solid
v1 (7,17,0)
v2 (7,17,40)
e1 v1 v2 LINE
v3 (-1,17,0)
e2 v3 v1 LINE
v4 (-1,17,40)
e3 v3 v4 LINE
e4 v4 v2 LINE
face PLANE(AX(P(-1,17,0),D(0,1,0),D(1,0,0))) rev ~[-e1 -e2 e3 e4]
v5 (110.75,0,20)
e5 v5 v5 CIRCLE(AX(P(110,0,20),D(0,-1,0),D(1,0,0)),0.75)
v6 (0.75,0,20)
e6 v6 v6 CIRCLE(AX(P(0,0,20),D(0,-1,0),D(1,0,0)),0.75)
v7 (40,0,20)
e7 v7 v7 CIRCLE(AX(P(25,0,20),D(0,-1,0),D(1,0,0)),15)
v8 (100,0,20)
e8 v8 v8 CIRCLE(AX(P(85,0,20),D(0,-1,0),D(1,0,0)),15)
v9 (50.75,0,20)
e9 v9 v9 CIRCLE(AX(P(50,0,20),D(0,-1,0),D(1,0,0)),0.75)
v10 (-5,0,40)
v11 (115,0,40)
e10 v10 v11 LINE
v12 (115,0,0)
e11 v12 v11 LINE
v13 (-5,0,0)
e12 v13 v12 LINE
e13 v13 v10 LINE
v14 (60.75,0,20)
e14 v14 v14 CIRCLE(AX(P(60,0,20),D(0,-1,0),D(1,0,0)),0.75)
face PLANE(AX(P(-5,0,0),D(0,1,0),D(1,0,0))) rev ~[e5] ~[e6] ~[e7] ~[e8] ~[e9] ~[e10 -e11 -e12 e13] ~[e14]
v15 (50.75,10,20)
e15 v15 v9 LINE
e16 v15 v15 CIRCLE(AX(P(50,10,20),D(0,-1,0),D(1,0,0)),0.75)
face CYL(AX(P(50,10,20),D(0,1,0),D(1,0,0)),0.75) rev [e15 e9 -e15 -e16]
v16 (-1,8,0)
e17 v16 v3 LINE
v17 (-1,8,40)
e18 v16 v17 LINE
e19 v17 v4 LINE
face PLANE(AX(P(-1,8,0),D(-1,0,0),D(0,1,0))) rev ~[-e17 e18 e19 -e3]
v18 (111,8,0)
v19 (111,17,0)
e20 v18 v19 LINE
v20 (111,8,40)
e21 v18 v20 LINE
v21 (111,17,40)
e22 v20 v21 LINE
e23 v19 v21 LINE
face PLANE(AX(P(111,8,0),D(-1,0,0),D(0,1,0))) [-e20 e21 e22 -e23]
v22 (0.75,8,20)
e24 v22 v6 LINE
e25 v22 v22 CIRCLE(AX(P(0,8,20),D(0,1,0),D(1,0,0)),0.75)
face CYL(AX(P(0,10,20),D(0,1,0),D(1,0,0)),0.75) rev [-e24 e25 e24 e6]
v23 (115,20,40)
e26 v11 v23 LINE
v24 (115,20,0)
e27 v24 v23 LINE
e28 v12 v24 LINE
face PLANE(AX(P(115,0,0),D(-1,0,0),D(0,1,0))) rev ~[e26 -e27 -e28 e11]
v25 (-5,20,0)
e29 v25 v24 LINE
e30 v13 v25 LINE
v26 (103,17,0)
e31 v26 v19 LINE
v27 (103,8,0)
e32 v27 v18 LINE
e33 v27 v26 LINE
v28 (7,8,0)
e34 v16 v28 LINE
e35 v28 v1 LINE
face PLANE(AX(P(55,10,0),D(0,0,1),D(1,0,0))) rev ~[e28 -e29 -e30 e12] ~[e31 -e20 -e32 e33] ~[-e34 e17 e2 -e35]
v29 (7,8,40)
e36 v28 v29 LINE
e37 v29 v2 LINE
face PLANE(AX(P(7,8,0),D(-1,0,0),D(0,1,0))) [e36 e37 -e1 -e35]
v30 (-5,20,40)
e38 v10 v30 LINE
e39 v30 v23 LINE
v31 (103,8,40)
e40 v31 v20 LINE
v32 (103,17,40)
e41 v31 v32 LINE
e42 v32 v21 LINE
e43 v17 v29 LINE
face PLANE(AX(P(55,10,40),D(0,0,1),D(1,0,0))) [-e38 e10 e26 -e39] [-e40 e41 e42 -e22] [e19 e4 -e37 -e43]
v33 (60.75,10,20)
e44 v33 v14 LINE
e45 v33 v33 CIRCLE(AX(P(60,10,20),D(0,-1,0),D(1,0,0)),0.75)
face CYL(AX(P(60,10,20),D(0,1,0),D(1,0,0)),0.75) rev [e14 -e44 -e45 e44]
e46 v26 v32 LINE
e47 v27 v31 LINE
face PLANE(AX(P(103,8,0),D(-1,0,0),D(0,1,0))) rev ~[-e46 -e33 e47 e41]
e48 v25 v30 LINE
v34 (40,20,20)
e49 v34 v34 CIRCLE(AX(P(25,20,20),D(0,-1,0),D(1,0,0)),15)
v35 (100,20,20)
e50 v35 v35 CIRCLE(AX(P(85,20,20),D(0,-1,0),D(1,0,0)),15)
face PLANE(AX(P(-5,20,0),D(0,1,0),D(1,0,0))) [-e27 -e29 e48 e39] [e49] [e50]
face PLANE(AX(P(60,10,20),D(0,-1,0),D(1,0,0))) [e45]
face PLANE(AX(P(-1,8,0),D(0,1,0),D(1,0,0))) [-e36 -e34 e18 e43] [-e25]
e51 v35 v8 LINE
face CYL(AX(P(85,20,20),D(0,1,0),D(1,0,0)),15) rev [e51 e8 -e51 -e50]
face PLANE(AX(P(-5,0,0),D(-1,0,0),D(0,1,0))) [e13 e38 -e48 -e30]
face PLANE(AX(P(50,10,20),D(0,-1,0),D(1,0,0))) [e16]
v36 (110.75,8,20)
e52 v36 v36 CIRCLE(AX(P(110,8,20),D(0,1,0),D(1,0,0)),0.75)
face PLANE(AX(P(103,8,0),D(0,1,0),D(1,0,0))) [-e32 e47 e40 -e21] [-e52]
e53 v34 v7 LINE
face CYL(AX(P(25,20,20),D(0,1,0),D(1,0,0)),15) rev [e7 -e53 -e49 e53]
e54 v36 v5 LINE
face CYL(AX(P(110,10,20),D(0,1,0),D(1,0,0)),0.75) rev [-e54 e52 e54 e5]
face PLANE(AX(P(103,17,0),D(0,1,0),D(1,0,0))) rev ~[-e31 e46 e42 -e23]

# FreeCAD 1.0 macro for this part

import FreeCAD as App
import Part
import Sketcher
from FreeCAD import Vector
Q = App.Units.Quantity

doc = App.newDocument("Part")
params = doc.addObject("Spreadsheet::Sheet", "Params")
for row, (alias, value) in enumerate([
    ("sketch1_diameter", "1.5 mm"),
    ("pad1_length", "10 mm"),
    ("sketch2_diameter", "1.5 mm"),
    ("pad2_length", "10 mm"),
    ("sketch3_diameter", "30 mm"),
    ("pad3_length", "20 mm"),
    ("sketch4_width", "8 mm"),
    ("sketch4_height", "9 mm"),
    ("pad4_length", "40 mm"),
    ("sketch5_width", "8 mm"),
    ("sketch5_height", "9 mm"),
    ("pad5_length", "40 mm"),
    ("sketch6_width", "120 mm"),
    ("sketch6_height", "20 mm"),
    ("pad6_length", "40 mm"),
], start=1):
    params.set(f"A{row}", alias)
    params.set(f"B{row}", "=" + value)
    params.setAlias(f"B{row}", alias)

body = doc.addObject("PartDesign::Body", "Body")

# Sketch on XY plane
sketch1 = body.newObject("Sketcher::SketchObject", "Sketch")
sketch1.AttachmentSupport = (doc.getObject("XY_Plane"), [""])
sketch1.MapMode = "FlatFace"
sketch1.addGeometry(Part.Circle(Vector(0, 0, 0), Vector(0, 0, 1), 0.75), False)
sketch1.addConstraint(Sketcher.Constraint("Coincident", 0, 3, -1, 1))
sketch1.addConstraint(Sketcher.Constraint("Diameter", 0, Q("1.5 mm")))
sketch1.setExpression("Constraints[1]", "Params.sketch1_diameter")
pad1 = body.newObject("PartDesign::Pad", "Pad")
pad1.Profile = sketch1
pad1.setExpression("Length", "Params.pad1_length")
body2 = doc.addObject("PartDesign::Body", "Body001")
doc.recompute()

body.Placement = App.Placement(Vector(0, 0, 0), App.Rotation(Vector(1, 0, 0), 90))
boolean = body2.newObject("PartDesign::Boolean", "Boolean")
boolean.Type = "Fuse"
boolean.addObjects([body])
body3 = doc.addObject("PartDesign::Body", "Body002")
doc.recompute()

body2.Placement = App.Placement(Vector(0, 10, 20), App.Rotation(Vector(0, 0, 1), 0))
boolean2 = body3.newObject("PartDesign::Boolean", "Boolean001")
boolean2.Type = "Fuse"
boolean2.addObjects([body2])
body4 = doc.addObject("PartDesign::Body", "Body003")

# Sketch on XY plane
sketch2 = body4.newObject("Sketcher::SketchObject", "Sketch001")
sketch2.AttachmentSupport = (doc.getObject("XY_Plane003"), [""])
sketch2.MapMode = "FlatFace"
sketch2.addGeometry(Part.Circle(Vector(0, 0, 0), Vector(0, 0, 1), 0.75), False)
sketch2.addConstraint(Sketcher.Constraint("Coincident", 0, 3, -1, 1))
sketch2.addConstraint(Sketcher.Constraint("Diameter", 0, Q("1.5 mm")))
sketch2.setExpression("Constraints[1]", "Params.sketch2_diameter")
pad2 = body4.newObject("PartDesign::Pad", "Pad001")
pad2.Profile = sketch2
pad2.setExpression("Length", "Params.pad2_length")
body5 = doc.addObject("PartDesign::Body", "Body004")
doc.recompute()

body4.Placement = App.Placement(Vector(0, 0, 0), App.Rotation(Vector(1, 0, 0), 90))
boolean3 = body5.newObject("PartDesign::Boolean", "Boolean002")
boolean3.Type = "Fuse"
boolean3.addObjects([body4])
body6 = doc.addObject("PartDesign::Body", "Body005")
doc.recompute()

body5.Placement = App.Placement(Vector(50, 10, 20), App.Rotation(Vector(0, 0, 1), 0))
boolean4 = body6.newObject("PartDesign::Boolean", "Boolean003")
boolean4.Type = "Fuse"
boolean4.addObjects([body5])
body7 = doc.addObject("PartDesign::Body", "Body006")

# Sketch on XY plane
sketch3 = body7.newObject("Sketcher::SketchObject", "Sketch002")
sketch3.AttachmentSupport = (doc.getObject("XY_Plane006"), [""])
sketch3.MapMode = "FlatFace"
sketch3.addGeometry(Part.Circle(Vector(0, 0, 0), Vector(0, 0, 1), 15), False)
sketch3.addConstraint(Sketcher.Constraint("Coincident", 0, 3, -1, 1))
sketch3.addConstraint(Sketcher.Constraint("Diameter", 0, Q("30 mm")))
sketch3.setExpression("Constraints[1]", "Params.sketch3_diameter")
pad3 = body7.newObject("PartDesign::Pad", "Pad002")
pad3.Profile = sketch3
pad3.setExpression("Length", "Params.pad3_length")
body8 = doc.addObject("PartDesign::Body", "Body007")
doc.recompute()

body7.Placement = App.Placement(Vector(0, 0, 0), App.Rotation(Vector(1, 0, 0), 90))
boolean5 = body8.newObject("PartDesign::Boolean", "Boolean004")
boolean5.Type = "Fuse"
boolean5.addObjects([body7])
body9 = doc.addObject("PartDesign::Body", "Body008")
doc.recompute()

body8.Placement = App.Placement(Vector(25, 20, 20), App.Rotation(Vector(0, 0, 1), 0))
boolean6 = body9.newObject("PartDesign::Boolean", "Boolean005")
boolean6.Type = "Fuse"
boolean6.addObjects([body8])
body10 = doc.addObject("PartDesign::Body", "Body009")
body10.AllowCompound = True
doc.recompute()

body10.BaseFeature = body9
doc.recompute()

body11 = doc.addObject("PartDesign::Body", "Body010")
body11.BaseFeature = body3
boolean7 = body10.newObject("PartDesign::Boolean", "Boolean006")
boolean7.Type = "Fuse"
boolean7.addObjects([body11])
doc.recompute()

body12 = doc.addObject("PartDesign::Body", "Body011")
body12.BaseFeature = body6
boolean8 = body10.newObject("PartDesign::Boolean", "Boolean007")
boolean8.Type = "Fuse"
boolean8.addObjects([body12])
doc.recompute()
body13 = doc.addObject("PartDesign::Body", "Body012")

# Sketch on XY plane
sketch4 = body13.newObject("Sketcher::SketchObject", "Sketch003")
sketch4.AttachmentSupport = (doc.getObject("XY_Plane012"), [""])
sketch4.MapMode = "FlatFace"
sketch4.addGeometry(Part.LineSegment(Vector(-1, 17, 0), Vector(-1, 8, 0)), False)
sketch4.addGeometry(Part.LineSegment(Vector(-1, 8, 0), Vector(7, 8, 0)), False)
sketch4.addGeometry(Part.LineSegment(Vector(7, 8, 0), Vector(7, 17, 0)), False)
sketch4.addGeometry(Part.LineSegment(Vector(7, 17, 0), Vector(-1, 17, 0)), False)
sketch4.addConstraint(Sketcher.Constraint("Coincident", 0, 2, 1, 1))
sketch4.addConstraint(Sketcher.Constraint("Coincident", 1, 2, 2, 1))
sketch4.addConstraint(Sketcher.Constraint("Coincident", 2, 2, 3, 1))
sketch4.addConstraint(Sketcher.Constraint("Coincident", 3, 2, 0, 1))
sketch4.addConstraint(Sketcher.Constraint("Vertical", 0))
sketch4.addConstraint(Sketcher.Constraint("Horizontal", 1))
sketch4.addConstraint(Sketcher.Constraint("Vertical", 2))
sketch4.addConstraint(Sketcher.Constraint("Horizontal", 3))
sketch4.addConstraint(Sketcher.Constraint("DistanceX", 1, 1, 1, 2, Q("8 mm")))
sketch4.addConstraint(Sketcher.Constraint("DistanceY", 0, 2, 0, 1, Q("9 mm")))
sketch4.addConstraint(Sketcher.Constraint("DistanceX", 0, 2, -1, 1, Q("1 mm")))
sketch4.addConstraint(Sketcher.Constraint("DistanceY", -1, 1, 0, 2, Q("8 mm")))
sketch4.setExpression("Constraints[8]", "Params.sketch4_width")
sketch4.setExpression("Constraints[9]", "Params.sketch4_height")
pad4 = body13.newObject("PartDesign::Pad", "Pad003")
pad4.Profile = sketch4
pad4.setExpression("Length", "Params.pad4_length")
body14 = doc.addObject("PartDesign::Body", "Body013")

# Sketch on XY plane
sketch5 = body14.newObject("Sketcher::SketchObject", "Sketch004")
sketch5.AttachmentSupport = (doc.getObject("XY_Plane013"), [""])
sketch5.MapMode = "FlatFace"
sketch5.addGeometry(Part.LineSegment(Vector(103, 17, 0), Vector(103, 8, 0)), False)
sketch5.addGeometry(Part.LineSegment(Vector(103, 8, 0), Vector(111, 8, 0)), False)
sketch5.addGeometry(Part.LineSegment(Vector(111, 8, 0), Vector(111, 17, 0)), False)
sketch5.addGeometry(Part.LineSegment(Vector(111, 17, 0), Vector(103, 17, 0)), False)
sketch5.addConstraint(Sketcher.Constraint("Coincident", 0, 2, 1, 1))
sketch5.addConstraint(Sketcher.Constraint("Coincident", 1, 2, 2, 1))
sketch5.addConstraint(Sketcher.Constraint("Coincident", 2, 2, 3, 1))
sketch5.addConstraint(Sketcher.Constraint("Coincident", 3, 2, 0, 1))
sketch5.addConstraint(Sketcher.Constraint("Vertical", 0))
sketch5.addConstraint(Sketcher.Constraint("Horizontal", 1))
sketch5.addConstraint(Sketcher.Constraint("Vertical", 2))
sketch5.addConstraint(Sketcher.Constraint("Horizontal", 3))
sketch5.addConstraint(Sketcher.Constraint("DistanceX", 1, 1, 1, 2, Q("8 mm")))
sketch5.addConstraint(Sketcher.Constraint("DistanceY", 0, 2, 0, 1, Q("9 mm")))
sketch5.addConstraint(Sketcher.Constraint("DistanceX", -1, 1, 0, 2, Q("103 mm")))
sketch5.addConstraint(Sketcher.Constraint("DistanceY", -1, 1, 0, 2, Q("8 mm")))
sketch5.setExpression("Constraints[8]", "Params.sketch5_width")
sketch5.setExpression("Constraints[9]", "Params.sketch5_height")
pad5 = body14.newObject("PartDesign::Pad", "Pad004")
pad5.Profile = sketch5
pad5.setExpression("Length", "Params.pad5_length")
body9.AllowCompound = True
doc.recompute()

boolean9 = body9.newObject("PartDesign::Boolean", "Boolean008")
boolean9.Type = "Fuse"
boolean9.addObjects([body3])
doc.recompute()

boolean10 = body9.newObject("PartDesign::Boolean", "Boolean009")
boolean10.Type = "Fuse"
boolean10.addObjects([body6])
body15 = doc.addObject("PartDesign::Body", "Body014")
body15.AllowCompound = True
doc.recompute()

body9.Placement = App.Placement(Vector(60, 0, 0), App.Rotation(Vector(0, 0, 1), 0))
boolean11 = body15.newObject("PartDesign::Boolean", "Boolean010")
boolean11.Type = "Fuse"
boolean11.addObjects([body9])
doc.recompute()

boolean12 = body15.newObject("PartDesign::Boolean", "Boolean011")
boolean12.Type = "Fuse"
boolean12.addObjects([body10])
doc.recompute()

boolean13 = body15.newObject("PartDesign::Boolean", "Boolean012")
boolean13.Type = "Fuse"
boolean13.addObjects([body13])
doc.recompute()

boolean14 = body15.newObject("PartDesign::Boolean", "Boolean013")
boolean14.Type = "Fuse"
boolean14.addObjects([body14])
body16 = doc.addObject("PartDesign::Body", "Body015")

# Sketch on XY plane
sketch6 = body16.newObject("Sketcher::SketchObject", "Sketch005")
sketch6.AttachmentSupport = (doc.getObject("XY_Plane015"), [""])
sketch6.MapMode = "FlatFace"
sketch6.addGeometry(Part.LineSegment(Vector(-5, 20, 0), Vector(-5, 0, 0)), False)
sketch6.addGeometry(Part.LineSegment(Vector(-5, 0, 0), Vector(115, 0, 0)), False)
sketch6.addGeometry(Part.LineSegment(Vector(115, 0, 0), Vector(115, 20, 0)), False)
sketch6.addGeometry(Part.LineSegment(Vector(115, 20, 0), Vector(-5, 20, 0)), False)
sketch6.addConstraint(Sketcher.Constraint("Coincident", 0, 2, 1, 1))
sketch6.addConstraint(Sketcher.Constraint("Coincident", 1, 2, 2, 1))
sketch6.addConstraint(Sketcher.Constraint("Coincident", 2, 2, 3, 1))
sketch6.addConstraint(Sketcher.Constraint("Coincident", 3, 2, 0, 1))
sketch6.addConstraint(Sketcher.Constraint("Vertical", 0))
sketch6.addConstraint(Sketcher.Constraint("Horizontal", 1))
sketch6.addConstraint(Sketcher.Constraint("Vertical", 2))
sketch6.addConstraint(Sketcher.Constraint("Horizontal", 3))
sketch6.addConstraint(Sketcher.Constraint("PointOnObject", 0, 2, -1))
sketch6.addConstraint(Sketcher.Constraint("DistanceX", 1, 1, 1, 2, Q("120 mm")))
sketch6.addConstraint(Sketcher.Constraint("DistanceY", 0, 2, 0, 1, Q("20 mm")))
sketch6.addConstraint(Sketcher.Constraint("DistanceX", 0, 2, -1, 1, Q("5 mm")))
sketch6.setExpression("Constraints[9]", "Params.sketch6_width")
sketch6.setExpression("Constraints[10]", "Params.sketch6_height")
pad6 = body16.newObject("PartDesign::Pad", "Pad005")
pad6.Profile = sketch6
pad6.setExpression("Length", "Params.pad6_length")
doc.recompute()

boolean15 = body16.newObject("PartDesign::Boolean", "Boolean014")
boolean15.Type = "Cut"
boolean15.addObjects([body15])

doc.recompute()
